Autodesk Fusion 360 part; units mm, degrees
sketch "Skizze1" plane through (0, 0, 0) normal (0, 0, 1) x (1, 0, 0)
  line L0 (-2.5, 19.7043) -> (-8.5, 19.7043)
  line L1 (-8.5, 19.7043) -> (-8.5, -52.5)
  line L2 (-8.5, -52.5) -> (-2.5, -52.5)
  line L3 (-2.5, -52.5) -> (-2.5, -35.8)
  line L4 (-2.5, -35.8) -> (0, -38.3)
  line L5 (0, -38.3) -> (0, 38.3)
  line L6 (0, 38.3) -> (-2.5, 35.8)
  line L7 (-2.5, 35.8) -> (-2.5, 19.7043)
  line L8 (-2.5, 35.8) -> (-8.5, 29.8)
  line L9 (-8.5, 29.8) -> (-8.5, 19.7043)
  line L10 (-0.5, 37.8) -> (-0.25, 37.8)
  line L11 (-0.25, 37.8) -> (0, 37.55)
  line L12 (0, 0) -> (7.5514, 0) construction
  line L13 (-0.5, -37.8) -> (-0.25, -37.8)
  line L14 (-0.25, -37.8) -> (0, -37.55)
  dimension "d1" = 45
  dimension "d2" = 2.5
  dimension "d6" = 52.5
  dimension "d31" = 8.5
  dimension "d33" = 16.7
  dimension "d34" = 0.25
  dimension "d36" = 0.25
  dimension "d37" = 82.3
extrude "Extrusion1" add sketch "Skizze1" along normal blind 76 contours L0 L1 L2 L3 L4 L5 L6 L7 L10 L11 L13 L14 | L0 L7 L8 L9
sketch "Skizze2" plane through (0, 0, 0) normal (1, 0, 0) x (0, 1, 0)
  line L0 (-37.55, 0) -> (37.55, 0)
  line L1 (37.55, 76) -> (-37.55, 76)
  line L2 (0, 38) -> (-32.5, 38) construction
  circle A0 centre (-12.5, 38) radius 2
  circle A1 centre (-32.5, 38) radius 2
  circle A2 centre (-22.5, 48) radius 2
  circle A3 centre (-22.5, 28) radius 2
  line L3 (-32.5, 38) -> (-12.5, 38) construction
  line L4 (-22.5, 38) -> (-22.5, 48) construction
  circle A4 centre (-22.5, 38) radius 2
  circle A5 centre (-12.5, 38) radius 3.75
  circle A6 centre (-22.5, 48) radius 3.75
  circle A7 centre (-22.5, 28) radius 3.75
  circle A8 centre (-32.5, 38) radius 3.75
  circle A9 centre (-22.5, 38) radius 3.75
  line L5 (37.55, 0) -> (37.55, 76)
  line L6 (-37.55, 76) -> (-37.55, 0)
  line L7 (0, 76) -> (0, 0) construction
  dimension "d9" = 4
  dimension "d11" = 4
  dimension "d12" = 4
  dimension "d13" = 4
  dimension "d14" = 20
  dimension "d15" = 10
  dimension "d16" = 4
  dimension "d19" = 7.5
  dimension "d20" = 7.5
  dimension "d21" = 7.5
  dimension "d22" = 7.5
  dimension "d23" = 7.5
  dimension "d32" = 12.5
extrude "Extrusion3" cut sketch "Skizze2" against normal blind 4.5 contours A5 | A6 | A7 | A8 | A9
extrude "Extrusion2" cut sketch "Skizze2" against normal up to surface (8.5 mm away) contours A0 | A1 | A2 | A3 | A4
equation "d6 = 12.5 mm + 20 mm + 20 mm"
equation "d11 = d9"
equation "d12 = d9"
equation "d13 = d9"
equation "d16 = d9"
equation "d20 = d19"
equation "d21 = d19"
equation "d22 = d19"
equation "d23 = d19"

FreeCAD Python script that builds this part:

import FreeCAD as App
import Part
import Sketcher
from FreeCAD import Vector


def add_polygon(sketch, points):
    """Adds a closed chain of lines whose ends are joined by coincident constraints."""
    first, n = sketch.GeometryCount, len(points)
    for a, b in zip(points, points[1:] + points[:1]):
        sketch.addGeometry(Part.LineSegment(App.Vector(*a, 0), App.Vector(*b, 0)), False)
    for i in range(n):
        sketch.addConstraint(Sketcher.Constraint("Coincident", first + i, 2, first + (i + 1) % n, 1))

doc = App.newDocument("Part")
body = doc.addObject("PartDesign::Body", "Body")

# Sketch on XY plane
sketch1 = body.newObject("Sketcher::SketchObject", "Sketch")
sketch1.AttachmentSupport = (doc.getObject("XY_Plane"), [""])
sketch1.MapMode = "FlatFace"
add_polygon(sketch1, [(-0.5, 37.8), (-8.5, 29.8), (-8.5, -52.5), (-2.5, -52.5), (-2.5, -35.8), (-0.5, -37.8), (-0.25, -37.8), (0, -37.55), (0, 37.55), (-0.25, 37.8)])  # lines 0-9
sketch1.addConstraint([
    Sketcher.Constraint("Vertical", 1),
    Sketcher.Constraint("Horizontal", 2),
    Sketcher.Constraint("Vertical", 3),
    Sketcher.Constraint("Horizontal", 5),
    Sketcher.Constraint("Vertical", 7),
    Sketcher.Constraint("Horizontal", 9),
    Sketcher.Constraint("Symmetric", 6, 2, 7, 2, -1, 1),
    Sketcher.Constraint("Symmetric", 5, 2, 8, 2, -1),
    Sketcher.Constraint("Perpendicular", 0, 4),
    Sketcher.Constraint("Perpendicular", 4, 6),
    Sketcher.Constraint("Perpendicular", 6, 8),
    Sketcher.Constraint("Vertical", 4, 2, 9, 2),
    Sketcher.Constraint("DistanceY", 1, 2, 1, 1, 82.3),
    Sketcher.Constraint("DistanceY", 3, 1, 3, 2, 16.7),
    Sketcher.Constraint("DistanceX", 5, 1, 5, 2, 0.25),
    Sketcher.Constraint("DistanceX", 0, 2, -1, 1, 8.5),
    Sketcher.Constraint("DistanceY", 1, 2, -1, 1, 52.5),
    Sketcher.Constraint("DistanceX", 5, 2, -1, 1, 0.25),
])
pad1 = body.newObject("PartDesign::Pad", "Pad")
pad1.Profile = sketch1
pad1.Length = 76

# Sketch on YZ plane
sketch2 = body.newObject("Sketcher::SketchObject", "Sketch001")
sketch2.AttachmentSupport = (doc.getObject("YZ_Plane"), [""])
sketch2.MapMode = "FlatFace"
sketch2.addGeometry([
    Part.Circle(Vector(-12.5, 38, 0), Vector(0, 0, 1), 3.75),  # 0
    Part.Circle(Vector(-12.5, 38, 0), Vector(0, 0, 1), 2),  # 1
    Part.Circle(Vector(-22.5, 48, 0), Vector(0, 0, 1), 3.75),  # 2
    Part.Circle(Vector(-22.5, 48, 0), Vector(0, 0, 1), 2),  # 3
    Part.Circle(Vector(-22.5, 28, 0), Vector(0, 0, 1), 3.75),  # 4
    Part.Circle(Vector(-22.5, 28, 0), Vector(0, 0, 1), 2),  # 5
    Part.Circle(Vector(-32.5, 38, 0), Vector(0, 0, 1), 3.75),  # 6
    Part.Circle(Vector(-32.5, 38, 0), Vector(0, 0, 1), 2),  # 7
    Part.Circle(Vector(-22.5, 38, 0), Vector(0, 0, 1), 3.75),  # 8
    Part.Circle(Vector(-22.5, 38, 0), Vector(0, 0, 1), 2),  # 9
], False)
sketch2.addConstraint([
    Sketcher.Constraint("Coincident", 1, 3, 0, 3),
    Sketcher.Constraint("Coincident", 3, 3, 2, 3),
    Sketcher.Constraint("Coincident", 5, 3, 4, 3),
    Sketcher.Constraint("Coincident", 7, 3, 6, 3),
    Sketcher.Constraint("Coincident", 9, 3, 8, 3),
    Sketcher.Constraint("Equal", 0, 2),
    Sketcher.Constraint("Equal", 1, 3),
    Sketcher.Constraint("Equal", 2, 4),
    Sketcher.Constraint("Equal", 3, 5),
    Sketcher.Constraint("Equal", 4, 6),
    Sketcher.Constraint("Equal", 5, 7),
    Sketcher.Constraint("Equal", 6, 8),
    Sketcher.Constraint("Equal", 7, 9),
    Sketcher.Constraint("Horizontal", 1, 3, 6, 3),
    Sketcher.Constraint("Horizontal", 7, 3, 8, 3),
    Sketcher.Constraint("Vertical", 3, 3, 4, 3),
    Sketcher.Constraint("Vertical", 5, 3, 8, 3),
    Sketcher.Constraint("Diameter", 1, 4.0),
    Sketcher.Constraint("Diameter", 0, 7.5),
    Sketcher.Constraint("DistanceX", 2, 3, 0, 3, 10.0),
    Sketcher.Constraint("DistanceY", 0, 3, 2, 3, 10.0),
    Sketcher.Constraint("DistanceY", 4, 3, 0, 3, 10.0),
    Sketcher.Constraint("DistanceX", 6, 3, 2, 3, 10.0),
    Sketcher.Constraint("DistanceX", 0, 3, -1, 1, 12.5),
    Sketcher.Constraint("DistanceY", -1, 1, 0, 3, 38.0),
])
pocket1 = body.newObject("PartDesign::Pocket", "Pocket")
pocket1.Profile = sketch2
pocket1.Length = 4.5

# Sketch on YZ plane
sketch3 = body.newObject("Sketcher::SketchObject", "Sketch002")
sketch3.AttachmentSupport = (doc.getObject("YZ_Plane"), [""])
sketch3.MapMode = "FlatFace"
sketch3.addGeometry([
    Part.Circle(Vector(-12.5, 38, 0), Vector(0, 0, 1), 2),  # 0
    Part.Circle(Vector(-32.5, 38, 0), Vector(0, 0, 1), 2),  # 1
    Part.Circle(Vector(-22.5, 48, 0), Vector(0, 0, 1), 2),  # 2
    Part.Circle(Vector(-22.5, 28, 0), Vector(0, 0, 1), 2),  # 3
    Part.Circle(Vector(-22.5, 38, 0), Vector(0, 0, 1), 2),  # 4
], False)
sketch3.addConstraint([
    Sketcher.Constraint("Equal", 0, 1),
    Sketcher.Constraint("Equal", 1, 2),
    Sketcher.Constraint("Equal", 2, 3),
    Sketcher.Constraint("Equal", 3, 4),
    Sketcher.Constraint("Horizontal", 0, 3, 1, 3),
    Sketcher.Constraint("Horizontal", 1, 3, 4, 3),
    Sketcher.Constraint("Vertical", 2, 3, 3, 3),
    Sketcher.Constraint("Vertical", 3, 3, 4, 3),
    Sketcher.Constraint("Diameter", 0, 4.0),
    Sketcher.Constraint("DistanceX", 1, 3, 0, 3, 20.0),
    Sketcher.Constraint("DistanceX", 2, 3, 0, 3, 10.0),
    Sketcher.Constraint("DistanceY", 0, 3, 2, 3, 10.0),
    Sketcher.Constraint("DistanceY", 3, 3, 0, 3, 10.0),
    Sketcher.Constraint("DistanceX", 0, 3, -1, 1, 12.5),
    Sketcher.Constraint("DistanceY", -1, 1, 0, 3, 38.0),
])
pocket2 = body.newObject("PartDesign::Pocket", "Pocket001")
pocket2.Profile = sketch3
pocket2.Length = 8.5

doc.recompute()
